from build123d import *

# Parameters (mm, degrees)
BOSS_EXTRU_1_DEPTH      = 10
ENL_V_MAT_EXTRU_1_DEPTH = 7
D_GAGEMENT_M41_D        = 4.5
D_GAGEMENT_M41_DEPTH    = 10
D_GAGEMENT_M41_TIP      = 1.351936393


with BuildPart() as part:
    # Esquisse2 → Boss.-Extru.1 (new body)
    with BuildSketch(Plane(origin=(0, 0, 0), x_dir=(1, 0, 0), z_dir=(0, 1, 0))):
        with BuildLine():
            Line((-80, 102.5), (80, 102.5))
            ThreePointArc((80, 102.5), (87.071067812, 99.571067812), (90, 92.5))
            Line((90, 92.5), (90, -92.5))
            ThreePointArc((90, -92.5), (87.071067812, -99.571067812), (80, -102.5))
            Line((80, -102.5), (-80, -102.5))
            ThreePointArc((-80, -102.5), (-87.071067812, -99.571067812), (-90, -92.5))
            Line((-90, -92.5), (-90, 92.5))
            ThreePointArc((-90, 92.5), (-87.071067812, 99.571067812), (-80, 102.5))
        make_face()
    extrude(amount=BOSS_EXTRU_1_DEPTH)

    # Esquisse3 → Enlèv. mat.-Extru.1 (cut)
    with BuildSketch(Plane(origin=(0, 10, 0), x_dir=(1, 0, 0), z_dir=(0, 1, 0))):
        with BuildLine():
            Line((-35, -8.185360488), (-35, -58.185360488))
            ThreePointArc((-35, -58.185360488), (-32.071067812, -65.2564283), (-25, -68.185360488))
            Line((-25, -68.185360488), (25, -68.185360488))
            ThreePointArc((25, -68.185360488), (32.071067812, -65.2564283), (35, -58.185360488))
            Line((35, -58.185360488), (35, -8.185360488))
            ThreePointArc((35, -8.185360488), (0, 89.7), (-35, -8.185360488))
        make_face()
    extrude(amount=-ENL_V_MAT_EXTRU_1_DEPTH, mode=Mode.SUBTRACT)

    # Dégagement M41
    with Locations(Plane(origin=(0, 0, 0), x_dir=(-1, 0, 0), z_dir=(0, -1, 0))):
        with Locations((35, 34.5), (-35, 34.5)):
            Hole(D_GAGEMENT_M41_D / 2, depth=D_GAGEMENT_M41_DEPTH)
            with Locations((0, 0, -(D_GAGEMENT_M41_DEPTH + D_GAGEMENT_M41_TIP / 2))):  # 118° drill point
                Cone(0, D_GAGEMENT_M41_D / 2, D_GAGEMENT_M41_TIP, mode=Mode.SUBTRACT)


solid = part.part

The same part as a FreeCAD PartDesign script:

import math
import FreeCAD as App
import Part
import Sketcher

V = App.Vector
Q = App.Units.Quantity

doc = App.newDocument("Part")
body = doc.addObject("PartDesign::Body", "Body")

sketch1 = body.newObject("Sketcher::SketchObject", "Sketch")
sketch1.AttachmentSupport = (doc.getObject("XZ_Plane"), [""])
sketch1.MapMode = "FlatFace"
sketch1.addGeometry(Part.LineSegment(V(80, -102.5, 0), V(-80, -102.5, 0)), False)
sketch1.addGeometry(Part.ArcOfCircle(Part.Circle(V(-80, -92.5, 0), V(0, 0, 1), 10), math.radians(180), math.radians(270)), False)
sketch1.addGeometry(Part.LineSegment(V(-90, -92.5, 0), V(-90, 92.5, 0)), False)
sketch1.addGeometry(Part.ArcOfCircle(Part.Circle(V(-80, 92.5, 0), V(0, 0, 1), 10), math.radians(90), math.radians(180)), False)
sketch1.addGeometry(Part.LineSegment(V(-80, 102.5, 0), V(80, 102.5, 0)), False)
sketch1.addGeometry(Part.ArcOfCircle(Part.Circle(V(80, 92.5, 0), V(0, 0, 1), 10), math.radians(0), math.radians(90)), False)
sketch1.addGeometry(Part.LineSegment(V(90, 92.5, 0), V(90, -92.5, 0)), False)
sketch1.addGeometry(Part.ArcOfCircle(Part.Circle(V(80, -92.5, 0), V(0, 0, 1), 10), math.radians(-90), math.radians(0)), False)
sketch1.addConstraint(Sketcher.Constraint("Tangent", 0, 2, 1, 2))
sketch1.addConstraint(Sketcher.Constraint("Tangent", 1, 1, 2, 1))
sketch1.addConstraint(Sketcher.Constraint("Tangent", 2, 2, 3, 2))
sketch1.addConstraint(Sketcher.Constraint("Tangent", 3, 1, 4, 1))
sketch1.addConstraint(Sketcher.Constraint("Tangent", 4, 2, 5, 2))
sketch1.addConstraint(Sketcher.Constraint("Tangent", 5, 1, 6, 1))
sketch1.addConstraint(Sketcher.Constraint("Tangent", 6, 2, 7, 2))
sketch1.addConstraint(Sketcher.Constraint("Tangent", 7, 1, 0, 1))
sketch1.addConstraint(Sketcher.Constraint("Horizontal", 0))
sketch1.addConstraint(Sketcher.Constraint("Vertical", 2))
sketch1.addConstraint(Sketcher.Constraint("Horizontal", 4))
sketch1.addConstraint(Sketcher.Constraint("Vertical", 6))
sketch1.addConstraint(Sketcher.Constraint("Equal", 1, 3))
sketch1.addConstraint(Sketcher.Constraint("Equal", 3, 5))
sketch1.addConstraint(Sketcher.Constraint("Equal", 5, 7))
sketch1.addConstraint(Sketcher.Constraint("Symmetric", 1, 3, 5, 3, -1, 1))
sketch1.addConstraint(Sketcher.Constraint("Radius", 1, Q("10 mm")))
sketch1.addConstraint(Sketcher.Constraint("DistanceX", 0, 2, 0, 1, Q("160 mm")))
sketch1.addConstraint(Sketcher.Constraint("DistanceY", 2, 1, 2, 2, Q("185 mm")))
pad1 = body.newObject("PartDesign::Pad", "Pad")
pad1.Profile = sketch1
pad1.Length = 10
pad1.Reversed = True

sketch2 = body.newObject("Sketcher::SketchObject", "Sketch001")
sketch2.AttachmentSupport = (doc.getObject("XZ_Plane"), [""])
sketch2.MapMode = "FlatFace"
sketch2.AttachmentOffset = App.Placement(V(0, 0, -10), App.Rotation())
sketch2.addGeometry(Part.LineSegment(V(-35, 8.18536, 0), V(-35, 58.18536, 0)), False)
sketch2.addGeometry(Part.ArcOfCircle(Part.Circle(V(-25, 58.18536, 0), V(0, 0, 1), 10), math.radians(90), math.radians(180)), False)
sketch2.addGeometry(Part.LineSegment(V(-25, 68.18536, 0), V(25, 68.18536, 0)), False)
sketch2.addGeometry(Part.ArcOfCircle(Part.Circle(V(25, 58.18536, 0), V(0, 0, 1), 10), math.radians(0), math.radians(90)), False)
sketch2.addGeometry(Part.LineSegment(V(35, 58.18536, 0), V(35, 8.18536, 0)), False)
sketch2.addGeometry(Part.ArcOfCircle(Part.Circle(V(0, -34.5, 0), V(0, 0, 1), 55.2), math.radians(129.350151), math.radians(410.649849)), False)
sketch2.addConstraint(Sketcher.Constraint("Tangent", 0, 2, 1, 2))
sketch2.addConstraint(Sketcher.Constraint("Tangent", 1, 1, 2, 1))
sketch2.addConstraint(Sketcher.Constraint("Tangent", 2, 2, 3, 2))
sketch2.addConstraint(Sketcher.Constraint("Tangent", 3, 1, 4, 1))
sketch2.addConstraint(Sketcher.Constraint("Coincident", 4, 2, 5, 2))
sketch2.addConstraint(Sketcher.Constraint("Coincident", 5, 1, 0, 1))
sketch2.addConstraint(Sketcher.Constraint("Vertical", 0))
sketch2.addConstraint(Sketcher.Constraint("Horizontal", 2))
sketch2.addConstraint(Sketcher.Constraint("Vertical", 4))
sketch2.addConstraint(Sketcher.Constraint("Equal", 1, 3))
sketch2.addConstraint(Sketcher.Constraint("Symmetric", 4, 2, 5, 1, -2))
sketch2.addConstraint(Sketcher.Constraint("Equal", 2, 0))
sketch2.addConstraint(Sketcher.Constraint("Radius", 1, Q("10 mm")))
sketch2.addConstraint(Sketcher.Constraint("Radius", 5, Q("55.2 mm")))
sketch2.addConstraint(Sketcher.Constraint("DistanceX", 2, 1, 2, 2, Q("50 mm")))
sketch2.addConstraint(Sketcher.Constraint("DistanceY", 5, 3, -1, 1, Q("34.5 mm")))
pocket1 = body.newObject("PartDesign::Pocket", "Pocket")
pocket1.Profile = sketch2
pocket1.Length = 7
pocket1.Reversed = True

sketch3 = body.newObject("Sketcher::SketchObject", "Sketch002")
sketch3.AttachmentSupport = (doc.getObject("XZ_Plane"), [""])
sketch3.MapMode = "FlatFace"
sketch3.addGeometry(Part.Circle(V(-35, -34.5, 0), V(0, 0, 1), 2.25), False)
sketch3.addGeometry(Part.Circle(V(35, -34.5, 0), V(0, 0, 1), 2.25), False)
sketch3.addConstraint(Sketcher.Constraint("Equal", 0, 1))
sketch3.addConstraint(Sketcher.Constraint("Symmetric", 0, 3, 1, 3, -2))
sketch3.addConstraint(Sketcher.Constraint("Diameter", 0, Q("4.5 mm")))
sketch3.addConstraint(Sketcher.Constraint("DistanceX", 0, 3, -1, 1, Q("35 mm")))
sketch3.addConstraint(Sketcher.Constraint("DistanceY", 0, 3, -1, 1, Q("34.5 mm")))
doc.recompute()
hole = body.newObject("PartDesign::Hole", "Hole")
hole.Profile = sketch3
hole.ThreadType = "None"
hole.Diameter = 4.5
hole.DepthType = "Dimension"
hole.Depth = 10
hole.DrillPoint = "Angled"
hole.DrillPointAngle = 118

doc.recompute()
